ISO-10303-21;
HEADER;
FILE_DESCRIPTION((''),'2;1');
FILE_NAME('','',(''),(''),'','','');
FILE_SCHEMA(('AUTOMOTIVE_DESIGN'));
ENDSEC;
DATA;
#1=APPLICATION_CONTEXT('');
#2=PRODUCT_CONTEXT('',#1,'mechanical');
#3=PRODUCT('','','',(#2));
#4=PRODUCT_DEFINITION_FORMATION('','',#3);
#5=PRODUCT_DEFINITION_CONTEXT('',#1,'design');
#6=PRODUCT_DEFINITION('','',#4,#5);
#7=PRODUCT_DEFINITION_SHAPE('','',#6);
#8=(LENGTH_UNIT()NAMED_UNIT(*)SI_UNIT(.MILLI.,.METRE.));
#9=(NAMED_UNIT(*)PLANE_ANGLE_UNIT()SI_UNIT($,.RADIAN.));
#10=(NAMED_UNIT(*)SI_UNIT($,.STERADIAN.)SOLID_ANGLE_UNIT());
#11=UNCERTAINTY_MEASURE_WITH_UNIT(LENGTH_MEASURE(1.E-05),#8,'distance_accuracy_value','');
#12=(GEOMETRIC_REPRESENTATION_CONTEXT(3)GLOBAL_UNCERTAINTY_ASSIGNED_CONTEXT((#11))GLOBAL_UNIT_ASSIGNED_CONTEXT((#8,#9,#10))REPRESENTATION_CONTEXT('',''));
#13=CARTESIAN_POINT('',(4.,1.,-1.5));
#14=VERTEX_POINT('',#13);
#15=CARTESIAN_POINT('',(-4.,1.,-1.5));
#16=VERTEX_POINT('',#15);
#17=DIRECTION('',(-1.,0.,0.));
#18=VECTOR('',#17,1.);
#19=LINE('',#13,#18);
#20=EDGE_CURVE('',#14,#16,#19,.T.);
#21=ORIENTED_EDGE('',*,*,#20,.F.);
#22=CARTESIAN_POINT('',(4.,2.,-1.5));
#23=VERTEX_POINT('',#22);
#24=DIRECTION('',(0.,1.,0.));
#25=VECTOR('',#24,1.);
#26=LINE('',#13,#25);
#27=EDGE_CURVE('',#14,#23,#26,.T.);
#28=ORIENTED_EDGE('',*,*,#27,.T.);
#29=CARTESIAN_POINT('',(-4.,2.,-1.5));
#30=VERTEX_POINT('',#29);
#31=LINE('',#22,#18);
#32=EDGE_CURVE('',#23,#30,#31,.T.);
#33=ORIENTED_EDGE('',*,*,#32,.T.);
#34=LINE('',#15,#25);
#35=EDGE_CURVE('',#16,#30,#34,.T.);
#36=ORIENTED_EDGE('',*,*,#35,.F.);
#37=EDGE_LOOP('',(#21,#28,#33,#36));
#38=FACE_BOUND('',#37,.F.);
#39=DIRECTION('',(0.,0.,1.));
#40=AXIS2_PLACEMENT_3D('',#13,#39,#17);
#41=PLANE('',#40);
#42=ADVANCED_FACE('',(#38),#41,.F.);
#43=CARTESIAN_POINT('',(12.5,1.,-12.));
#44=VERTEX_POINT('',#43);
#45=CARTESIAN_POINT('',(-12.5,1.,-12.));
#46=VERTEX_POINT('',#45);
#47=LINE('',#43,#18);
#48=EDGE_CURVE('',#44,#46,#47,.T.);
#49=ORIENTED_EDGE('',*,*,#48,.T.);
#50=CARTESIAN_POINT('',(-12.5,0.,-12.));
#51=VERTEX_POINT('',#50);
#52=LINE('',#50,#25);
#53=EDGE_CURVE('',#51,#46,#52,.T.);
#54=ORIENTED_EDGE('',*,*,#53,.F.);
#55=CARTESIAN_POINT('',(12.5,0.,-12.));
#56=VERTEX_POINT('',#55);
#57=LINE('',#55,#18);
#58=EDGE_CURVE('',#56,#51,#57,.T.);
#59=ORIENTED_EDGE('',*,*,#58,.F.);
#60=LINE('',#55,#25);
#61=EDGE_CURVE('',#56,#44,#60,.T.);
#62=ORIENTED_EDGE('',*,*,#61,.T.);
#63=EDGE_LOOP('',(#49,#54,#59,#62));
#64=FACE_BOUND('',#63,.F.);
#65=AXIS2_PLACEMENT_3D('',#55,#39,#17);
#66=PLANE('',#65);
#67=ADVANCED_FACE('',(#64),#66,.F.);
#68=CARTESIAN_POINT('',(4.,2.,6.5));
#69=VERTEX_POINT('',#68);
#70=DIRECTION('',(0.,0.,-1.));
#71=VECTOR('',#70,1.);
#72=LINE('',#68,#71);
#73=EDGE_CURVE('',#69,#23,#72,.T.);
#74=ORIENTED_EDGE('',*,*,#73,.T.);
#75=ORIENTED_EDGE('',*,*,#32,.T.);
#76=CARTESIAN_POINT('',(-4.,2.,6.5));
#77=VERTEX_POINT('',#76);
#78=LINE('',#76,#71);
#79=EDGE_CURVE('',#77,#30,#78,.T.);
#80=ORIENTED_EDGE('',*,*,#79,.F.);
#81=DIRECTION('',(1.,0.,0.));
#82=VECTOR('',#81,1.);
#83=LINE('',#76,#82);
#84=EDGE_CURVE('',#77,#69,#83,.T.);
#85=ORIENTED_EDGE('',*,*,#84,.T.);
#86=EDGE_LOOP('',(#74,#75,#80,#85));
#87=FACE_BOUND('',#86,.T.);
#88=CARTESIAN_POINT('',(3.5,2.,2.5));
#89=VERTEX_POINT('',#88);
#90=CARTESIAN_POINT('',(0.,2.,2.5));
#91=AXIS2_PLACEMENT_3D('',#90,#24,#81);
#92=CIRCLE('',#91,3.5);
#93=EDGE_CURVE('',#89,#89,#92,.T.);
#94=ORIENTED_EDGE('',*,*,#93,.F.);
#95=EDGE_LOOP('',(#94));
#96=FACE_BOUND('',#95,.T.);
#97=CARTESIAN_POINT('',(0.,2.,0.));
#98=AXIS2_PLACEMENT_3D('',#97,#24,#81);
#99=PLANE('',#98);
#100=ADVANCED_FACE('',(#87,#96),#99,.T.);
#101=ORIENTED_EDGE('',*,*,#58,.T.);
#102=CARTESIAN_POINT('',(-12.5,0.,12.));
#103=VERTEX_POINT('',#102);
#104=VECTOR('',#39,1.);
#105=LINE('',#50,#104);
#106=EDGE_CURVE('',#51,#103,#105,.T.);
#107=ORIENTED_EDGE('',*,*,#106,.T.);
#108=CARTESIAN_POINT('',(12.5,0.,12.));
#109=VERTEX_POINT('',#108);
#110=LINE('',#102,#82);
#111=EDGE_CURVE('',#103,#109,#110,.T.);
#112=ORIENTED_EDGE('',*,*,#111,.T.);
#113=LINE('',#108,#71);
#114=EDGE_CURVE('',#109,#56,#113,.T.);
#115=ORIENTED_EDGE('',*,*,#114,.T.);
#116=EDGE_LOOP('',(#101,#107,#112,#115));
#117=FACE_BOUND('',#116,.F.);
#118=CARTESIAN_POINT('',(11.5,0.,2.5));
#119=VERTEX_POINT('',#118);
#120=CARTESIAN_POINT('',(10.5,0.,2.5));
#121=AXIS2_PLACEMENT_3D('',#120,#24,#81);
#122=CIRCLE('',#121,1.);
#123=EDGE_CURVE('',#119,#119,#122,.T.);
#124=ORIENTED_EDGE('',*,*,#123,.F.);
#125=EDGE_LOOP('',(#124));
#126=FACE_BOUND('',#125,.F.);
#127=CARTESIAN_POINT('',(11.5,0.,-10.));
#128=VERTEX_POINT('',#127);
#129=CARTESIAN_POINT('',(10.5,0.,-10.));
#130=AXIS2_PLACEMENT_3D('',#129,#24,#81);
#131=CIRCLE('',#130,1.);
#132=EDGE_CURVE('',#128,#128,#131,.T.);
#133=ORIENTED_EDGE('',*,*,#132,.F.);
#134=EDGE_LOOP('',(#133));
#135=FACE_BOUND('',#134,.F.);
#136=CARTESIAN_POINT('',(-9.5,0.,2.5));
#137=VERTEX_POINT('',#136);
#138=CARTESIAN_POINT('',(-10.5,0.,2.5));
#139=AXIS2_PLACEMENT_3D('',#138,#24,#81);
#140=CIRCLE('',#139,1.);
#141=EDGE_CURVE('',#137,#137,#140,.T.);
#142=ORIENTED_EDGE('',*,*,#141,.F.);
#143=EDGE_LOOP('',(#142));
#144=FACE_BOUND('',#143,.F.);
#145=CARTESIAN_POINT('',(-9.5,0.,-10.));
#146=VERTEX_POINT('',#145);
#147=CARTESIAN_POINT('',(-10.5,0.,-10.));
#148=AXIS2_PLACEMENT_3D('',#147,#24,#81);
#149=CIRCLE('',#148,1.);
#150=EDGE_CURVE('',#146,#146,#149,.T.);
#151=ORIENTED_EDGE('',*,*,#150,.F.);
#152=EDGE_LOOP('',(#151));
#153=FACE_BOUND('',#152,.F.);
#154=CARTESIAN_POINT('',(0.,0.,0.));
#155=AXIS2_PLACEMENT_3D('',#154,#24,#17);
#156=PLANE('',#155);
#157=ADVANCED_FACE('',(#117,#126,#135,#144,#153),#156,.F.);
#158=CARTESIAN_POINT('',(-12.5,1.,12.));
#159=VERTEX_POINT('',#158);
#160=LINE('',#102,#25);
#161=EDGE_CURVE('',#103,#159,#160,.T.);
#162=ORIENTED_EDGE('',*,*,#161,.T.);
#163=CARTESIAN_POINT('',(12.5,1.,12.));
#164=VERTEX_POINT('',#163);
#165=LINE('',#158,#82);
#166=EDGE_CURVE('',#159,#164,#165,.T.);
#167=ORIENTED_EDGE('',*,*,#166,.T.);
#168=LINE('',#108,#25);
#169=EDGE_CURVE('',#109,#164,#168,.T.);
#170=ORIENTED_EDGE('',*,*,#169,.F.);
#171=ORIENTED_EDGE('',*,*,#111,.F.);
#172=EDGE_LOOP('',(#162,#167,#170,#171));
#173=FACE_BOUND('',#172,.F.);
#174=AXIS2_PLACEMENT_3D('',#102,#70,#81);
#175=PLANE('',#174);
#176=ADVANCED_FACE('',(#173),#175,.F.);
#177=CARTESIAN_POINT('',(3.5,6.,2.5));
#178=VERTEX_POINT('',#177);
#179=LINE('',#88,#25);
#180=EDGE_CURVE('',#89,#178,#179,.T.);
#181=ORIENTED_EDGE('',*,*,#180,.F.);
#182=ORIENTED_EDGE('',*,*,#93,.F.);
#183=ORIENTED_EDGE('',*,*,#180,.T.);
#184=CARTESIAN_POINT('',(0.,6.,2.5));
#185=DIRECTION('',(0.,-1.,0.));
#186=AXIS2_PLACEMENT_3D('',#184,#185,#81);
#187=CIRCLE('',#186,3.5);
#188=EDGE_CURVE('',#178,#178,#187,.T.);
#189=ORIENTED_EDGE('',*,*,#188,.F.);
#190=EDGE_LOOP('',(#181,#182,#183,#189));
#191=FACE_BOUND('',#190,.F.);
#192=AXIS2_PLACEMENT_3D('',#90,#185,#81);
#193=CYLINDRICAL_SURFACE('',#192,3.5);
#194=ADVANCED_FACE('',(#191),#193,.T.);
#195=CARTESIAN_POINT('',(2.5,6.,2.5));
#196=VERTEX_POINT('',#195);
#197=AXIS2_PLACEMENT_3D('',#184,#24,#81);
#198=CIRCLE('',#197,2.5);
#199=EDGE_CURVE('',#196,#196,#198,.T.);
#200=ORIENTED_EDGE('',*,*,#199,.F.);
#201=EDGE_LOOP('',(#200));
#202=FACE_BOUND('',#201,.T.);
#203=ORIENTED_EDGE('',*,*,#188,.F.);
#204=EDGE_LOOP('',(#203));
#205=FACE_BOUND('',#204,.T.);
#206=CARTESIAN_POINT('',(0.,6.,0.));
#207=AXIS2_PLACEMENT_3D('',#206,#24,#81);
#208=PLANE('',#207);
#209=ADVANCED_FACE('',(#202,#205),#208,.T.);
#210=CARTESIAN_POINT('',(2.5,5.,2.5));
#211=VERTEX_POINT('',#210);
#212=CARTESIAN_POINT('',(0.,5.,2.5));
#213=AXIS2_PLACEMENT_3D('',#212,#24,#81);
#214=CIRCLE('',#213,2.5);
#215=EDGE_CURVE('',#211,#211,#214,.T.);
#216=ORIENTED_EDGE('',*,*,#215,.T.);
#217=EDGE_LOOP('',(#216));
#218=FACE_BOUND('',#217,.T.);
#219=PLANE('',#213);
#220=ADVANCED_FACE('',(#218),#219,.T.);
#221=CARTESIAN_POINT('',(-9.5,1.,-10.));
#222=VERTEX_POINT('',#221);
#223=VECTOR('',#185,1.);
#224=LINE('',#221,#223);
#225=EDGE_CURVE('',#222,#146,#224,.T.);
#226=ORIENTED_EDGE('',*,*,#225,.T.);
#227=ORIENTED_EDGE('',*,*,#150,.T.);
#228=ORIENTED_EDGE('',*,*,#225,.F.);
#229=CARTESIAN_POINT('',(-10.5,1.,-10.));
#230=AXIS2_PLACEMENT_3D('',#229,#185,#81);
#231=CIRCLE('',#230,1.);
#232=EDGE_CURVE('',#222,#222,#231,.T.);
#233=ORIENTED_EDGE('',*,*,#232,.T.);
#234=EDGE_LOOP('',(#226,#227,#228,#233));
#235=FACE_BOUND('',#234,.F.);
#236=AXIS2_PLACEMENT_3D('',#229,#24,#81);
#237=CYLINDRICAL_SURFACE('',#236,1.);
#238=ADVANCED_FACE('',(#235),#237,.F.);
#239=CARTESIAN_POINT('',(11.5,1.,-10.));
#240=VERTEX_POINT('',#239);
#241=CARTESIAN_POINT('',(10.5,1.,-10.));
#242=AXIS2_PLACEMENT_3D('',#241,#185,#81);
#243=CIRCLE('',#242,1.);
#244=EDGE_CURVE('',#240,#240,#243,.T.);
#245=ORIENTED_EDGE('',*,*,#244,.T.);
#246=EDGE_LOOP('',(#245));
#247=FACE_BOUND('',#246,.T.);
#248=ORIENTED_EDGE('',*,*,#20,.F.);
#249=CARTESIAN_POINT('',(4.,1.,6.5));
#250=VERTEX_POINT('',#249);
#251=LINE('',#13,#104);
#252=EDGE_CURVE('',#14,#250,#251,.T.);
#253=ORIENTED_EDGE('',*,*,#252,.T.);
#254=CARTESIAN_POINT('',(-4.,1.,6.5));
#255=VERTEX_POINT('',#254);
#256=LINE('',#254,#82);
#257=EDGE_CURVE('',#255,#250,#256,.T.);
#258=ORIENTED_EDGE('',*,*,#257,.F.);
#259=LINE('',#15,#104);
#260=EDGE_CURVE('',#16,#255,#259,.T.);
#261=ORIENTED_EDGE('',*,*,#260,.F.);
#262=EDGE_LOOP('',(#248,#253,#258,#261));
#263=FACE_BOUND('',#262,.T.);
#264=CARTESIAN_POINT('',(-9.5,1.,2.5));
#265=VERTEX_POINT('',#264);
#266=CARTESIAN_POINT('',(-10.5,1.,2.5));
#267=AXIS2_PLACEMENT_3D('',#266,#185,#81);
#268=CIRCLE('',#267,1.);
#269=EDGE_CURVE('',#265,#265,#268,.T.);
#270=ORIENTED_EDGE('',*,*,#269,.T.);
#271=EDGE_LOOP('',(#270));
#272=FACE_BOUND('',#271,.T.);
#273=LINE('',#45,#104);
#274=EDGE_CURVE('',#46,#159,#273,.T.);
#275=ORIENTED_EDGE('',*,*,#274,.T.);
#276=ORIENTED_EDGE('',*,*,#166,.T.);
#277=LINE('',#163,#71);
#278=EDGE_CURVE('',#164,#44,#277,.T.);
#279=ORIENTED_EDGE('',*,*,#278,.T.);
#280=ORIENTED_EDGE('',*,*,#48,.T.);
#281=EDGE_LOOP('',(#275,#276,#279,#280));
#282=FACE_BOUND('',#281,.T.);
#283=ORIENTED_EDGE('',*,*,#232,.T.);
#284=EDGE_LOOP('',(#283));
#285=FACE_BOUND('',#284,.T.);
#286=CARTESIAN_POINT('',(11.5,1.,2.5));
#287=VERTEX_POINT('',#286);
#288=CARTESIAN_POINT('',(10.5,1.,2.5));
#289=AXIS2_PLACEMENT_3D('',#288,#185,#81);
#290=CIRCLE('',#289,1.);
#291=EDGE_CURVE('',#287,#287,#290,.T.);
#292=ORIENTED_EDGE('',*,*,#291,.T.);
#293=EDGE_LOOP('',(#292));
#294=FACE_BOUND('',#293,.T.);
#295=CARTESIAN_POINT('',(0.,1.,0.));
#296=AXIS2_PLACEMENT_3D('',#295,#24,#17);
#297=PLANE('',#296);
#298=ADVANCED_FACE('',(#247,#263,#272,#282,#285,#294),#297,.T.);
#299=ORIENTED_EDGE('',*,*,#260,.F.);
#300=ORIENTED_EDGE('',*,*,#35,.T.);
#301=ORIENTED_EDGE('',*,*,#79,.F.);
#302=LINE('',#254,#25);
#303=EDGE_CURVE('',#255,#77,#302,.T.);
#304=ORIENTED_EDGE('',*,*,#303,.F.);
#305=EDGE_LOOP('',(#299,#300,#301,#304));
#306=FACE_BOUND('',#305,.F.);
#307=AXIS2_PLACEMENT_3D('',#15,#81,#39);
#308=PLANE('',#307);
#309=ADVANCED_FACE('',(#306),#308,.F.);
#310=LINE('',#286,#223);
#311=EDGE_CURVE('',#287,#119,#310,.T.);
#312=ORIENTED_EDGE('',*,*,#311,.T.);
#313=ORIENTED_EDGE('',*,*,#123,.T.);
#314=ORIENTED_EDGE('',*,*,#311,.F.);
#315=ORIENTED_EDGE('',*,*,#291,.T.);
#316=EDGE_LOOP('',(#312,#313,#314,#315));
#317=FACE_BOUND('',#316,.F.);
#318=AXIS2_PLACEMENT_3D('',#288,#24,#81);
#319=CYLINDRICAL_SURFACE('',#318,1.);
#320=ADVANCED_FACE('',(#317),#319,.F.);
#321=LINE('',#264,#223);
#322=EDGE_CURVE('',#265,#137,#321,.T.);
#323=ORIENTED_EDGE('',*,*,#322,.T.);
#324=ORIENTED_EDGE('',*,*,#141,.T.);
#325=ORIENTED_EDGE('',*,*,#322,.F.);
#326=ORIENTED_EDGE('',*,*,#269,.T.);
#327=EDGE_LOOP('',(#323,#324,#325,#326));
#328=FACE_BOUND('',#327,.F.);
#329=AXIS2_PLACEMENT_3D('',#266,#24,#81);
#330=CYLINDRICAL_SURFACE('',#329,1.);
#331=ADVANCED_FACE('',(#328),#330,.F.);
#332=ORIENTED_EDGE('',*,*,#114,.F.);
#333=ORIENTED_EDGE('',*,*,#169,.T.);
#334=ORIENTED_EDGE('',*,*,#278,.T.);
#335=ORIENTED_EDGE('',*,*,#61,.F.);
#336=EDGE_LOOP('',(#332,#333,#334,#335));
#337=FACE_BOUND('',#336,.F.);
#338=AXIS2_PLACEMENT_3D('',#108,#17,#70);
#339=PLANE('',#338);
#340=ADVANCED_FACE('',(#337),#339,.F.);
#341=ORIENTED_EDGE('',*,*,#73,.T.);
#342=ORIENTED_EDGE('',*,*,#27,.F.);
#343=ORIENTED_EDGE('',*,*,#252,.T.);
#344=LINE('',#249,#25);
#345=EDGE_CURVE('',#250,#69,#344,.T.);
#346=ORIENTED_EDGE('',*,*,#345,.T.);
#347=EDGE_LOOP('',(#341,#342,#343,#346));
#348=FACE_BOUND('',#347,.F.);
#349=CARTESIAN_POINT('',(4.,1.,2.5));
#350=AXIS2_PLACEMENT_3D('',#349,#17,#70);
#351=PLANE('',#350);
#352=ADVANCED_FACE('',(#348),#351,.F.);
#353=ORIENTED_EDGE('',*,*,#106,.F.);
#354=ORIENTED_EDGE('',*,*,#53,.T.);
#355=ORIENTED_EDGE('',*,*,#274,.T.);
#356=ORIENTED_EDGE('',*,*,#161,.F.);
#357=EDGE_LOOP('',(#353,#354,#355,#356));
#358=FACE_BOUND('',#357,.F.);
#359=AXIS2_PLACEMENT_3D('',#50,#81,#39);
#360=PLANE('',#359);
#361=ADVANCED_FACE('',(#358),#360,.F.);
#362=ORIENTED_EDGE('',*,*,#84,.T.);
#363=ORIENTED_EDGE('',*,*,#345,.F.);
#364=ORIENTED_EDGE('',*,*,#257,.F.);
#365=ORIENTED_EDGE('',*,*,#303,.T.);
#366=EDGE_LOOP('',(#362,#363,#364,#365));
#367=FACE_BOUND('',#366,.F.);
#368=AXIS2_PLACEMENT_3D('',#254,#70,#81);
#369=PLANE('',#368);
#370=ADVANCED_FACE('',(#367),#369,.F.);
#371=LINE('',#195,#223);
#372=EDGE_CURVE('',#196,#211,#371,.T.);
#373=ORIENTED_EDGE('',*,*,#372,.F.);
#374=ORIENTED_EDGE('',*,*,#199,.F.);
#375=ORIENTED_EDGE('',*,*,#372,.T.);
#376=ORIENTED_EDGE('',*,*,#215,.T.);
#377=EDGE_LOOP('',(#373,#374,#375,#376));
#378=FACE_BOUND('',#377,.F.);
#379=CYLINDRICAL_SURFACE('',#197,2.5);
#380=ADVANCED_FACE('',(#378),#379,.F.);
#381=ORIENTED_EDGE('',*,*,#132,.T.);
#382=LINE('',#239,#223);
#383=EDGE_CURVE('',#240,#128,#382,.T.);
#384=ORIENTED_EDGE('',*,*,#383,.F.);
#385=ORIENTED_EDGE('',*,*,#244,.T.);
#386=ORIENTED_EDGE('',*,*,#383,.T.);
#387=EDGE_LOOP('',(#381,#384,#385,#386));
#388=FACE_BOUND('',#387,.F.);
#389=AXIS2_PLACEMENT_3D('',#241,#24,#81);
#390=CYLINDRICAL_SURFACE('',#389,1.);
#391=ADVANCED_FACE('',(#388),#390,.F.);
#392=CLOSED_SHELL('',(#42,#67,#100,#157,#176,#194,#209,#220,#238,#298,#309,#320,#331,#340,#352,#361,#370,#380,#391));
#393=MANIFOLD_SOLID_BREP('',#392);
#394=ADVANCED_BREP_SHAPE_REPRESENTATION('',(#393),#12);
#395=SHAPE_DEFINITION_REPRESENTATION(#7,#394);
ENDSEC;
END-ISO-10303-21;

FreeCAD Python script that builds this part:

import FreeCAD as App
import Part
import Sketcher
from FreeCAD import Vector

doc = App.newDocument("Part")
body = doc.addObject("PartDesign::Body", "Body")

# Sketch on XZ plane
sketch1 = doc.addObject("Sketcher::SketchObject", "Sketch")
body.addObject(sketch1)
sketch1.AttachmentSupport = (doc.XZ_Plane, [""])
sketch1.MapMode = "FlatFace"
sketch1.addGeometry([
    Part.LineSegment(Vector(-12, -12, 0), Vector(-12, 12, 0)),
    Part.LineSegment(Vector(-12, 12, 0), Vector(12, 12, 0)),
    Part.LineSegment(Vector(12, 12, 0), Vector(12, -12, 0)),
    Part.LineSegment(Vector(12, -12, 0), Vector(-12, -12, 0)),
], False)
sketch1.addConstraint([
    Sketcher.Constraint("Coincident", 0, 2, 1, 1),
    Sketcher.Constraint("Coincident", 1, 2, 2, 1),
    Sketcher.Constraint("Coincident", 2, 2, 3, 1),
    Sketcher.Constraint("Coincident", 3, 2, 0, 1),
    Sketcher.Constraint("Vertical", 0),
    Sketcher.Constraint("Horizontal", 1),
    Sketcher.Constraint("Vertical", 2),
    Sketcher.Constraint("Horizontal", 3),
    Sketcher.Constraint("Symmetric", 0, 2, 2, 2, -1, 1),
    Sketcher.Constraint("DistanceX", 1, 1, 1, 2, 25.0),
    Sketcher.Constraint("DistanceY", 0, 1, 0, 2, 24.0),
])
pad1 = doc.addObject("PartDesign::Pad", "Pad")
body.addObject(pad1)
pad1.Profile = sketch1
pad1.Length = 1
pad1.Reversed = True

# Sketch on XZ plane
sketch2 = doc.addObject("Sketcher::SketchObject", "Sketch001")
body.addObject(sketch2)
sketch2.AttachmentSupport = (doc.XZ_Plane, [""])
sketch2.MapMode = "FlatFace"
sketch2.AttachmentOffset = App.Placement(Vector(0, 0, -1), App.Rotation())
sketch2.addGeometry([
    Part.Circle(Vector(-10.5, -10, 0), Vector(0, 0, 1), 1),
    Part.Circle(Vector(-10.5, 2.5, 0), Vector(0, 0, 1), 1),
    Part.Circle(Vector(10.5, -10, 0), Vector(0, 0, 1), 1),
    Part.Circle(Vector(10.5, 2.5, 0), Vector(0, 0, 1), 1),
], False)
sketch2.addConstraint([
    Sketcher.Constraint("Equal", 0, 1),
    Sketcher.Constraint("Equal", 1, 2),
    Sketcher.Constraint("Equal", 2, 3),
    Sketcher.Constraint("Symmetric", 0, 3, 2, 3, -2),
    Sketcher.Constraint("Symmetric", 1, 3, 3, 3, -2),
    Sketcher.Constraint("Vertical", 0, 3, 1, 3),
    Sketcher.Constraint("Diameter", 0, 2.0),
    Sketcher.Constraint("DistanceY", 0, 3, -1, 1, 10.0),
    Sketcher.Constraint("DistanceX", 0, 3, 2, 3, 21.0),
    Sketcher.Constraint("DistanceY", -1, 1, 1, 3, 2.5),
])
pocket1 = doc.addObject("PartDesign::Pocket", "Pocket")
body.addObject(pocket1)
pocket1.Profile = sketch2
pocket1.Type = "UpToFirst"
pocket1.Reversed = True

# Sketch on XZ plane
sketch3 = doc.addObject("Sketcher::SketchObject", "Sketch002")
body.addObject(sketch3)
sketch3.AttachmentSupport = (doc.XZ_Plane, [""])
sketch3.MapMode = "FlatFace"
sketch3.AttachmentOffset = App.Placement(Vector(0, 0, -1), App.Rotation())
sketch3.addGeometry([
    Part.LineSegment(Vector(-4, -2, 0), Vector(-4, 6, 0)),
    Part.LineSegment(Vector(-4, 6, 0), Vector(4, 6, 0)),
    Part.LineSegment(Vector(4, 6, 0), Vector(4, -2, 0)),
    Part.LineSegment(Vector(4, -2, 0), Vector(-4, -2, 0)),
], False)
sketch3.addConstraint([
    Sketcher.Constraint("Coincident", 0, 2, 1, 1),
    Sketcher.Constraint("Coincident", 1, 2, 2, 1),
    Sketcher.Constraint("Coincident", 2, 2, 3, 1),
    Sketcher.Constraint("Coincident", 3, 2, 0, 1),
    Sketcher.Constraint("Vertical", 0),
    Sketcher.Constraint("Horizontal", 1),
    Sketcher.Constraint("Vertical", 2),
    Sketcher.Constraint("Horizontal", 3),
    Sketcher.Constraint("Equal", 3, 0),
    Sketcher.Constraint("DistanceX", 1, 1, 1, 2, 8.0),
    Sketcher.Constraint("DistanceX", 0, 2, -1, 1, 4.0),
    Sketcher.Constraint("DistanceY", -1, 1, 0, 2, 6.5),
])
pad2 = doc.addObject("PartDesign::Pad", "Pad001")
body.addObject(pad2)
pad2.Profile = sketch3
pad2.Length = 1
pad2.Reversed = True

# Sketch on XZ plane
sketch4 = doc.addObject("Sketcher::SketchObject", "Sketch003")
body.addObject(sketch4)
sketch4.AttachmentSupport = (doc.XZ_Plane, [""])
sketch4.MapMode = "FlatFace"
sketch4.AttachmentOffset = App.Placement(Vector(0, 0, -2), App.Rotation())
sketch4.addGeometry(Part.Circle(Vector(0, 2.5, 0), Vector(0, 0, 1), 3.5), False)
sketch4.addConstraint([
    Sketcher.Constraint("PointOnObject", 0, 3, -2),
    Sketcher.Constraint("Diameter", 0, 7.0),
    Sketcher.Constraint("DistanceY", -1, 1, 0, 3, 2.5),
])
pad3 = doc.addObject("PartDesign::Pad", "Pad002")
body.addObject(pad3)
pad3.Profile = sketch4
pad3.Length = 4
pad3.Reversed = True

# Sketch on XZ plane
sketch5 = doc.addObject("Sketcher::SketchObject", "Sketch004")
body.addObject(sketch5)
sketch5.AttachmentSupport = (doc.XZ_Plane, [""])
sketch5.MapMode = "FlatFace"
sketch5.AttachmentOffset = App.Placement(Vector(0, 0, -6), App.Rotation())
sketch5.addGeometry(Part.Circle(Vector(0, 2.5, 0), Vector(0, 0, 1), 2.5), False)
sketch5.addConstraint([
    Sketcher.Constraint("PointOnObject", 0, 3, -2),
    Sketcher.Constraint("Diameter", 0, 5.0),
    Sketcher.Constraint("DistanceY", -1, 1, 0, 3, 2.5),
])
pocket2 = doc.addObject("PartDesign::Pocket", "Pocket001")
body.addObject(pocket2)
pocket2.Profile = sketch5
pocket2.Length = 1
pocket2.Reversed = True

doc.recompute()
